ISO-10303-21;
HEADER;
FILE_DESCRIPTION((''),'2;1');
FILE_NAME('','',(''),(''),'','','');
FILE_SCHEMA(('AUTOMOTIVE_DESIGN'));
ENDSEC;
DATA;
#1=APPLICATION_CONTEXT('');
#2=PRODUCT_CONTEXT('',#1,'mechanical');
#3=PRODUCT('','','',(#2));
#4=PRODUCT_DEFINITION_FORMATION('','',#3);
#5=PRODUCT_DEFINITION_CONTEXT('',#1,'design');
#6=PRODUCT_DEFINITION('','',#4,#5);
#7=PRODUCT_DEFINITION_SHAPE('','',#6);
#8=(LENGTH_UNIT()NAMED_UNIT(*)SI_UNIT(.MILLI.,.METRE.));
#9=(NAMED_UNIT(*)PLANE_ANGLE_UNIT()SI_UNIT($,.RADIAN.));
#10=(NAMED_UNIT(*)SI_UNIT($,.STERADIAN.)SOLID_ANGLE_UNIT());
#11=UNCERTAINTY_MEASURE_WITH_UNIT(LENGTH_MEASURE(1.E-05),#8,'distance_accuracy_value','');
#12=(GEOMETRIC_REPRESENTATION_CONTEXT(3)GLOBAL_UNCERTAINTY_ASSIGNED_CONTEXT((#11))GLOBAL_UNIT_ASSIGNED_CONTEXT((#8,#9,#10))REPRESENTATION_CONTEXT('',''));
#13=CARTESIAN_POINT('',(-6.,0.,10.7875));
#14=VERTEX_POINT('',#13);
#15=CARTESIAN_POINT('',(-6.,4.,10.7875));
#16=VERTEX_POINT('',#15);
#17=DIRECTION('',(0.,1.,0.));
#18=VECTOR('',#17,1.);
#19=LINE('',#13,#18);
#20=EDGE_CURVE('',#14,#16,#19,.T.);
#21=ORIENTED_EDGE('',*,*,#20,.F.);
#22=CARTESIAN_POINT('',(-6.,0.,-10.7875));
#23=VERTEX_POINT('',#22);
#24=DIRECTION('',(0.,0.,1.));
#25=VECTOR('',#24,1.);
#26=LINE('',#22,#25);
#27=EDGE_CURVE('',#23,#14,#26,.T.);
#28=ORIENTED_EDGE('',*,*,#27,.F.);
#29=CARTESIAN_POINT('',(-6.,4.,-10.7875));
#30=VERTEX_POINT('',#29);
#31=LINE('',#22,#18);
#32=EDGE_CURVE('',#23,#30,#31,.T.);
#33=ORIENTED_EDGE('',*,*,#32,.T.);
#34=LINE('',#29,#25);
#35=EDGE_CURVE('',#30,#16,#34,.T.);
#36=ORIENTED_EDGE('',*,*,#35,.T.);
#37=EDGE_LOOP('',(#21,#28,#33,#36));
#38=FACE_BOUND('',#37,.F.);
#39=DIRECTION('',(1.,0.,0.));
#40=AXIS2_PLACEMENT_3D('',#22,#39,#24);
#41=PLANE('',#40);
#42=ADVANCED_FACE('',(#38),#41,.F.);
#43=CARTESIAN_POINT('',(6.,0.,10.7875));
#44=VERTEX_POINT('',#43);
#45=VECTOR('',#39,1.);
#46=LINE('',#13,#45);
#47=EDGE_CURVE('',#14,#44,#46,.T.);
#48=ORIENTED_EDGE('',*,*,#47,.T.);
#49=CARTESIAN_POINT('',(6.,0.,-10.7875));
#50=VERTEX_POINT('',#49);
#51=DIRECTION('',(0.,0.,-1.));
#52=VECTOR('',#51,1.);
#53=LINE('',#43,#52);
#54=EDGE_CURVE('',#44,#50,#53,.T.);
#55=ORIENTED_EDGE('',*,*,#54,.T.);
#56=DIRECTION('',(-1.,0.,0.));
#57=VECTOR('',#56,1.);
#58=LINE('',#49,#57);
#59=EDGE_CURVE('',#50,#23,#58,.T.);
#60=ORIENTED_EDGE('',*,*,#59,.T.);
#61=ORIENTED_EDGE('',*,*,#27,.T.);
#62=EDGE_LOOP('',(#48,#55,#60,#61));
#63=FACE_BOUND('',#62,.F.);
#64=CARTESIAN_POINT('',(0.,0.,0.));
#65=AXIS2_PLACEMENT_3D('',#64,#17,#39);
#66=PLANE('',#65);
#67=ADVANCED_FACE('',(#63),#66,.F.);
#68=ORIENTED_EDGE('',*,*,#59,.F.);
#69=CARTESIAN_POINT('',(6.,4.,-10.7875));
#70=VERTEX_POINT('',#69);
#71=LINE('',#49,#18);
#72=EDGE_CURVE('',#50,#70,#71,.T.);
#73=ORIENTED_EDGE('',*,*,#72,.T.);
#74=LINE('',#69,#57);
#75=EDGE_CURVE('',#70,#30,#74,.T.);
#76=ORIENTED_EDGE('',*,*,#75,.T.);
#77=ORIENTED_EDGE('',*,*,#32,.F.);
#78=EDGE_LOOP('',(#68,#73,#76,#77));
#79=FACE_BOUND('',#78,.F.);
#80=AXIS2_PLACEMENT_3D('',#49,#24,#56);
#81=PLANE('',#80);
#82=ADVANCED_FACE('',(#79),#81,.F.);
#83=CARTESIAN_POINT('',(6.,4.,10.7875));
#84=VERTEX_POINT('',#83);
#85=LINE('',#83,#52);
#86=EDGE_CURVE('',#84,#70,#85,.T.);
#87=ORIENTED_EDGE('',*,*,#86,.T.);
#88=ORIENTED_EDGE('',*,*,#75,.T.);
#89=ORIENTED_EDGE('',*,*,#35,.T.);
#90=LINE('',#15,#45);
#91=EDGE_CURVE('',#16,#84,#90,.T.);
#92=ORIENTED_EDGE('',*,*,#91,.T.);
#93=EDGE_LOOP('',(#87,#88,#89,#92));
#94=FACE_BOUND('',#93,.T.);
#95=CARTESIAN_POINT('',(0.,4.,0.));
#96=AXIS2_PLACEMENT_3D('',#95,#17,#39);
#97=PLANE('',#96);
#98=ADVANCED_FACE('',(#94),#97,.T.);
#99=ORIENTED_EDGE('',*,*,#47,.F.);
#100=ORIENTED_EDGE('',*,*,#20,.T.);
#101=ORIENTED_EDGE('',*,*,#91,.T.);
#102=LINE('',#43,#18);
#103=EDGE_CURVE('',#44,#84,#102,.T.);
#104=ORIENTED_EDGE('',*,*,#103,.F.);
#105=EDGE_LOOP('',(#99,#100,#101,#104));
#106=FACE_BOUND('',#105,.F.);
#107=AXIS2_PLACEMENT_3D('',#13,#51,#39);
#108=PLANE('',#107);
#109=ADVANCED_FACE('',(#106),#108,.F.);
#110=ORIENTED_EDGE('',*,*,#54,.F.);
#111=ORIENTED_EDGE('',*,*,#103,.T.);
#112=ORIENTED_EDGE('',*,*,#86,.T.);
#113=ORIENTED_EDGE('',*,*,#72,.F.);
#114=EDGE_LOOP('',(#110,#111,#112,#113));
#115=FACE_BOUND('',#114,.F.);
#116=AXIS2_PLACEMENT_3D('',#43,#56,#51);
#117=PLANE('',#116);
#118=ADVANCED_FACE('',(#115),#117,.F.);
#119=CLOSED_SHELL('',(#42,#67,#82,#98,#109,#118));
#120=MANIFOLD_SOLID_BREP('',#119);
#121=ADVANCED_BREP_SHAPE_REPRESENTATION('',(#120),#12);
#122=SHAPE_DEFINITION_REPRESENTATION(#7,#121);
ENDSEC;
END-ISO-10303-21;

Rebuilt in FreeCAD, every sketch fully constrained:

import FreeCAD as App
import Part
import Sketcher

V = App.Vector
Q = App.Units.Quantity

doc = App.newDocument("Part")
body = doc.addObject("PartDesign::Body", "Body")

sketch1 = body.newObject("Sketcher::SketchObject", "Sketch")
sketch1.AttachmentSupport = (doc.getObject("XZ_Plane"), [""])
sketch1.MapMode = "FlatFace"
sketch1.addGeometry([
    Part.LineSegment(V(6, 10.7875, 0), V(6, -10.7875, 0)),
    Part.LineSegment(V(6, -10.7875, 0), V(-6, -10.7875, 0)),
    Part.LineSegment(V(-6, -10.7875, 0), V(-6, 10.7875, 0)),
    Part.LineSegment(V(-6, 10.7875, 0), V(6, 10.7875, 0)),
], False)
sketch1.addConstraint([
    Sketcher.Constraint("Coincident", 0, 2, 1, 1),
    Sketcher.Constraint("Coincident", 1, 2, 2, 1),
    Sketcher.Constraint("Coincident", 2, 2, 3, 1),
    Sketcher.Constraint("Coincident", 3, 2, 0, 1),
    Sketcher.Constraint("Vertical", 0),
    Sketcher.Constraint("Horizontal", 1),
    Sketcher.Constraint("Vertical", 2),
    Sketcher.Constraint("Horizontal", 3),
    Sketcher.Constraint("Symmetric", 0, 2, 2, 2, -1, 1),
    Sketcher.Constraint("DistanceX", 1, 2, 1, 1, Q("12 mm")),
    Sketcher.Constraint("DistanceY", 0, 2, 0, 1, Q("21.575 mm")),
])
pad1 = body.newObject("PartDesign::Pad", "Pad")
pad1.Profile = sketch1
pad1.Length = 4
pad1.Reversed = True

doc.recompute()
